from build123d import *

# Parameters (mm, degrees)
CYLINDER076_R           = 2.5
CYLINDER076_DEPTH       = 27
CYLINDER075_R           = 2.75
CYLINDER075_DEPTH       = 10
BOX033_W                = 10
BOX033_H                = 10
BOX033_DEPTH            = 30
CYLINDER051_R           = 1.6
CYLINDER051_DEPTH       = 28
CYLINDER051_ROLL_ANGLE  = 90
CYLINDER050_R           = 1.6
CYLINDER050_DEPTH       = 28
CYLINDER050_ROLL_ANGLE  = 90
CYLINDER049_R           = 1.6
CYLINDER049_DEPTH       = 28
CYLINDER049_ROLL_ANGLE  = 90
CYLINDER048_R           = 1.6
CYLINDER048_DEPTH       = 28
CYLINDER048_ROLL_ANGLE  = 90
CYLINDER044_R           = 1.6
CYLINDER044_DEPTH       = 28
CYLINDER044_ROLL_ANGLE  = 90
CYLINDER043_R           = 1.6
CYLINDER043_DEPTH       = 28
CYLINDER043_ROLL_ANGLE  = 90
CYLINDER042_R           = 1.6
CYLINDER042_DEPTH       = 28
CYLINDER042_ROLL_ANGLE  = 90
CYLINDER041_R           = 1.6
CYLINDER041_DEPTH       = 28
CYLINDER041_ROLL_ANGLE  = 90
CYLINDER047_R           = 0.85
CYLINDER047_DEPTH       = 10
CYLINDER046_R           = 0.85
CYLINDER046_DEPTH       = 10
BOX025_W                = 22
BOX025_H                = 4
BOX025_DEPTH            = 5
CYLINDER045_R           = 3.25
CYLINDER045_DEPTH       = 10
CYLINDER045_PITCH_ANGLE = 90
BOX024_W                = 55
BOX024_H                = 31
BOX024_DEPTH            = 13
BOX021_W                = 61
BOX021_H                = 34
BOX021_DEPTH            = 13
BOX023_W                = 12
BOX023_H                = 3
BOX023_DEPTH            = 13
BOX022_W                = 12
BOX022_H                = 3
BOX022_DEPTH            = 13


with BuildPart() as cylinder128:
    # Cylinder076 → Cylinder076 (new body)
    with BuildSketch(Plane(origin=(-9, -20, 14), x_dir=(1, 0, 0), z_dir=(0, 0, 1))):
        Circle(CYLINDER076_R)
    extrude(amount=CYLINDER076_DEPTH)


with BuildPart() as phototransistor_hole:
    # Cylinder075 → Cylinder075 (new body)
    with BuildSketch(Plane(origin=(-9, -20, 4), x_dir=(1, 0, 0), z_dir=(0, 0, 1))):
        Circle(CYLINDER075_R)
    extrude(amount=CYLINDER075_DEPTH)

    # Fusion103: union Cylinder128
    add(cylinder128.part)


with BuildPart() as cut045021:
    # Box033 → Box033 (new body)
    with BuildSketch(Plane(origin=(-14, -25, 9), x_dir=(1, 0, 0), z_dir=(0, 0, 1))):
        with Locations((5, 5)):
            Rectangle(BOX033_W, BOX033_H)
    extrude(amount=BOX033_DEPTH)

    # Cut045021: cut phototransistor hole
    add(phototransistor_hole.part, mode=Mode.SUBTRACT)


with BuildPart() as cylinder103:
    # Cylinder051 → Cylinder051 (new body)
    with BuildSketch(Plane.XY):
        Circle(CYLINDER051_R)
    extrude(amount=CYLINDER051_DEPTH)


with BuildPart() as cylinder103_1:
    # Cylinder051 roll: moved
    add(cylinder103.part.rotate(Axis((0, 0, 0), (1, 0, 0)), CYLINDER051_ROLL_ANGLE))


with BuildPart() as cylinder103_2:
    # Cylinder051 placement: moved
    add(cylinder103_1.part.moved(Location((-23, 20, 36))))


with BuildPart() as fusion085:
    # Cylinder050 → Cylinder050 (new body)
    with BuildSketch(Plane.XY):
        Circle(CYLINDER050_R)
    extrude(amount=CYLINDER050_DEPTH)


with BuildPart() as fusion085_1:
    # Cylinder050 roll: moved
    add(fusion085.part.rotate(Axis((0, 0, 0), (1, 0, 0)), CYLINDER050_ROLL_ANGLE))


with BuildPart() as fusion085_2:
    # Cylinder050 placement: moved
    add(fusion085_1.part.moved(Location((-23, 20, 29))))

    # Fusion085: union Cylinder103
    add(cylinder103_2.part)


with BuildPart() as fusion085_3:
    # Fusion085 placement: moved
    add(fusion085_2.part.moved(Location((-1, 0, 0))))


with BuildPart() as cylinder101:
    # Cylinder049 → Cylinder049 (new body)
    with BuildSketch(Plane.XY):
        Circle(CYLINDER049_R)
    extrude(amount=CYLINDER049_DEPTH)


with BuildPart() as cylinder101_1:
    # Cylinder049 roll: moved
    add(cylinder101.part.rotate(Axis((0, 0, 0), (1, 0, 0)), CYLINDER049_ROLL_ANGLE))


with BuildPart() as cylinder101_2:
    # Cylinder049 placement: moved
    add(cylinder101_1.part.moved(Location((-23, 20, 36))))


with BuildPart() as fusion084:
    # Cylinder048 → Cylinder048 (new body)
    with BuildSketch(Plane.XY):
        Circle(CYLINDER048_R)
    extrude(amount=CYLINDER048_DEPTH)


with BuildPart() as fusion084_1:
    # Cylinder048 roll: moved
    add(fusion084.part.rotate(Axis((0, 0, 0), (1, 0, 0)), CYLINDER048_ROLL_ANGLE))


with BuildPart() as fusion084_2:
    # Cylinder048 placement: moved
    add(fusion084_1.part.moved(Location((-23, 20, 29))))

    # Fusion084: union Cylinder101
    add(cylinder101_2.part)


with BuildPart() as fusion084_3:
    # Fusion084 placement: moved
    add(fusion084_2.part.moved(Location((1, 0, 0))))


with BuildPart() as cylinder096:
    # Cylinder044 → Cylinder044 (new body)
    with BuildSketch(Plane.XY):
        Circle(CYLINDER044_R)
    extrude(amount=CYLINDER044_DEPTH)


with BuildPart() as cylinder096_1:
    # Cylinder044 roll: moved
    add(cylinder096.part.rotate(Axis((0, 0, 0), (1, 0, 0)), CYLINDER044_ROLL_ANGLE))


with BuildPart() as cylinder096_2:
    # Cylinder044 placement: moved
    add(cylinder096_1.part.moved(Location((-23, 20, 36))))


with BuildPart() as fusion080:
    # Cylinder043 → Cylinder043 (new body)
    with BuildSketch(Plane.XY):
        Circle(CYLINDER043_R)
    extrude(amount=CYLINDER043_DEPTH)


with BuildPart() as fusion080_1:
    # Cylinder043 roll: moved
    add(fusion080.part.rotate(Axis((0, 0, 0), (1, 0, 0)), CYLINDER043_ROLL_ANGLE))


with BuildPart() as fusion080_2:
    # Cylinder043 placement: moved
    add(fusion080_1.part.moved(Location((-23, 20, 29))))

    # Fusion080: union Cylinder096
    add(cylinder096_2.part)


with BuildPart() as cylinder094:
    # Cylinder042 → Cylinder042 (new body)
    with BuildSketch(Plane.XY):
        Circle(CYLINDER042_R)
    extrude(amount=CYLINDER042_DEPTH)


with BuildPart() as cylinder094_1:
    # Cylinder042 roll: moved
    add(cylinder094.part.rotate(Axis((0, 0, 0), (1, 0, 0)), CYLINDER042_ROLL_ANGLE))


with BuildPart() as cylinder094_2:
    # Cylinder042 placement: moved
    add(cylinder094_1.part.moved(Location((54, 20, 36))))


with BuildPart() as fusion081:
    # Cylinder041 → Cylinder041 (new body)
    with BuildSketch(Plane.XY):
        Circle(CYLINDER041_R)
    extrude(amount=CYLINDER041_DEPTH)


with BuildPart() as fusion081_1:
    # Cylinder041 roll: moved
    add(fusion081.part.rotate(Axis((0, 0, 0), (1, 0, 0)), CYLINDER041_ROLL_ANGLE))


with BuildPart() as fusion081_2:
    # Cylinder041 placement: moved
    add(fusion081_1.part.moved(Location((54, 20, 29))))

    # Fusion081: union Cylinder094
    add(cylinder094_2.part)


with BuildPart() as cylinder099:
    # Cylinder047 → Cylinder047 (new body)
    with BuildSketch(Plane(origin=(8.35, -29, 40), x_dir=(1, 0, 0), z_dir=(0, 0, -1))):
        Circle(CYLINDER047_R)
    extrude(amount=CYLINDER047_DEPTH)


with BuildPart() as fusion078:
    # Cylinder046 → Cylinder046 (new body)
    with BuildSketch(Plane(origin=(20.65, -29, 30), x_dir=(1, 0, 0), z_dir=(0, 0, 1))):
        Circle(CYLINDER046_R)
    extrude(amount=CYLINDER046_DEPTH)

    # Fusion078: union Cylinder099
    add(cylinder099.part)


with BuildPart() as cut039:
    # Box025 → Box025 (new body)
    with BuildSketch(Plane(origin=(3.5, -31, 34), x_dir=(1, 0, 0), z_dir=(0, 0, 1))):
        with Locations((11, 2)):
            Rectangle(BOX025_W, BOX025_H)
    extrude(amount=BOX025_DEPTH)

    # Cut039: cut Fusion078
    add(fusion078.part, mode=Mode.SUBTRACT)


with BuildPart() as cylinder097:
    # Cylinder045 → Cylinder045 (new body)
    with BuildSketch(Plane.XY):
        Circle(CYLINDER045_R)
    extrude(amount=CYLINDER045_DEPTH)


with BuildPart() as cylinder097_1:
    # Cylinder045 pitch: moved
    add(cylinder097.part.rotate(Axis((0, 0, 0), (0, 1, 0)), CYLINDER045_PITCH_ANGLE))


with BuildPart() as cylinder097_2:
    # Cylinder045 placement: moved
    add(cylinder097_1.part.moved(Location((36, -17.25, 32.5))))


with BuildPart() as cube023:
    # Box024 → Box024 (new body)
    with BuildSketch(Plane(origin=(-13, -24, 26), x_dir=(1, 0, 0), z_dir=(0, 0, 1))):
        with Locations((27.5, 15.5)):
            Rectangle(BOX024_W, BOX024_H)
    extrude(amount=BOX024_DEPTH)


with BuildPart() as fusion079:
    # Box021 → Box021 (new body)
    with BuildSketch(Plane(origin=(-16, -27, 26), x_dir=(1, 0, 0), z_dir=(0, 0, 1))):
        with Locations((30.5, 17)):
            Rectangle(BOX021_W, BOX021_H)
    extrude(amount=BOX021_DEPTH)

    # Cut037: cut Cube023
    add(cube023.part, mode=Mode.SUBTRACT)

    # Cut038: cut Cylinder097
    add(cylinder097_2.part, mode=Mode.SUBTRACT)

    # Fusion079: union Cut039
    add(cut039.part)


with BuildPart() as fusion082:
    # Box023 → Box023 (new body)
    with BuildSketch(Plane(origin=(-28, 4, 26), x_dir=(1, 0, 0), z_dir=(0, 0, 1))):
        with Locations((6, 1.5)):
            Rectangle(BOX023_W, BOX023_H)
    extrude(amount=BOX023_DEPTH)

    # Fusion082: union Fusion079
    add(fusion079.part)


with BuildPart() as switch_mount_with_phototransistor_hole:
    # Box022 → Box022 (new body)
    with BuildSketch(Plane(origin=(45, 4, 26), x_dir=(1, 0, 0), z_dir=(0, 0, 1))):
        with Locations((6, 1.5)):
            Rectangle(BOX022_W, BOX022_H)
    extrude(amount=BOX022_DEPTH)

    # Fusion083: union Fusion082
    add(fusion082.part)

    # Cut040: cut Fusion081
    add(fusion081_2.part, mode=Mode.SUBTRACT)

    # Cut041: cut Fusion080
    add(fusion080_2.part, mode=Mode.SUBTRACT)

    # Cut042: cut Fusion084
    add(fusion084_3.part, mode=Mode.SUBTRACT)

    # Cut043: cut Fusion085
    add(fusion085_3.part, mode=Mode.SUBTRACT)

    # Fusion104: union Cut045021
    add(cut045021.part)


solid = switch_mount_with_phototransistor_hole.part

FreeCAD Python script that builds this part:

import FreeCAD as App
import Part
import Sketcher

doc = App.newDocument("Part")
body = doc.addObject("PartDesign::Body", "Body")

sketch1 = body.newObject("Sketcher::SketchObject", "Sketch")
sketch1.AttachmentSupport = (doc.getObject("XY_Plane"), [""])
sketch1.MapMode = "FlatFace"
sketch1.AttachmentOffset = App.Placement(App.Vector(0, 0, 14), App.Rotation())
sketch1.addGeometry(Part.Circle(App.Vector(-9, -20, 0), App.Vector(0, 0, 1), 2.5), False)
sketch1.addConstraint(Sketcher.Constraint("Diameter", 0, 5.0))
sketch1.addConstraint(Sketcher.Constraint("DistanceX", 0, 3, -1, 1, 9.0))
sketch1.addConstraint(Sketcher.Constraint("DistanceY", 0, 3, -1, 1, 20.0))
pad1 = body.newObject("PartDesign::Pad", "Pad")
pad1.Profile = sketch1
pad1.Length = 27
body2 = doc.addObject("PartDesign::Body", "Body001")

sketch2 = body2.newObject("Sketcher::SketchObject", "Sketch001")
sketch2.AttachmentSupport = (doc.getObject("XY_Plane001"), [""])
sketch2.MapMode = "FlatFace"
sketch2.AttachmentOffset = App.Placement(App.Vector(0, 0, 4), App.Rotation())
sketch2.addGeometry(Part.Circle(App.Vector(-9, -20, 0), App.Vector(0, 0, 1), 2.8), False)
sketch2.addConstraint(Sketcher.Constraint("Diameter", 0, 5.5))
sketch2.addConstraint(Sketcher.Constraint("DistanceX", 0, 3, -1, 1, 9.0))
sketch2.addConstraint(Sketcher.Constraint("DistanceY", 0, 3, -1, 1, 20.0))
pad2 = body2.newObject("PartDesign::Pad", "Pad001")
pad2.Profile = sketch2
pad2.Length = 10
doc.recompute()

boolean = body2.newObject("PartDesign::Boolean", "Boolean")
boolean.Type = "Fuse"
boolean.addObjects([body])
body3 = doc.addObject("PartDesign::Body", "Body002")

sketch3 = body3.newObject("Sketcher::SketchObject", "Sketch002")
sketch3.AttachmentSupport = (doc.getObject("XY_Plane002"), [""])
sketch3.MapMode = "FlatFace"
sketch3.AttachmentOffset = App.Placement(App.Vector(0, 0, 9), App.Rotation())
sketch3.addGeometry(Part.LineSegment(App.Vector(-14, -15, 0), App.Vector(-14, -25, 0)), False)
sketch3.addGeometry(Part.LineSegment(App.Vector(-14, -25, 0), App.Vector(-4, -25, 0)), False)
sketch3.addGeometry(Part.LineSegment(App.Vector(-4, -25, 0), App.Vector(-4, -15, 0)), False)
sketch3.addGeometry(Part.LineSegment(App.Vector(-4, -15, 0), App.Vector(-14, -15, 0)), False)
sketch3.addConstraint(Sketcher.Constraint("Coincident", 0, 2, 1, 1))
sketch3.addConstraint(Sketcher.Constraint("Coincident", 1, 2, 2, 1))
sketch3.addConstraint(Sketcher.Constraint("Coincident", 2, 2, 3, 1))
sketch3.addConstraint(Sketcher.Constraint("Coincident", 3, 2, 0, 1))
sketch3.addConstraint(Sketcher.Constraint("Vertical", 0))
sketch3.addConstraint(Sketcher.Constraint("Horizontal", 1))
sketch3.addConstraint(Sketcher.Constraint("Vertical", 2))
sketch3.addConstraint(Sketcher.Constraint("Horizontal", 3))
sketch3.addConstraint(Sketcher.Constraint("Equal", 3, 0))
sketch3.addConstraint(Sketcher.Constraint("DistanceX", 1, 1, 1, 2, 10.0))
sketch3.addConstraint(Sketcher.Constraint("DistanceX", 0, 2, -1, 1, 14.0))
sketch3.addConstraint(Sketcher.Constraint("DistanceY", 0, 2, -1, 1, 25.0))
pad3 = body3.newObject("PartDesign::Pad", "Pad002")
pad3.Profile = sketch3
pad3.Length = 30
doc.recompute()

boolean2 = body3.newObject("PartDesign::Boolean", "Boolean001")
boolean2.Type = "Cut"
boolean2.addObjects([body2])
body4 = doc.addObject("PartDesign::Body", "Body003")

sketch4 = body4.newObject("Sketcher::SketchObject", "Sketch003")
sketch4.AttachmentSupport = (doc.getObject("XY_Plane003"), [""])
sketch4.MapMode = "FlatFace"
sketch4.addGeometry(Part.Circle(App.Vector(0, 0, 0), App.Vector(0, 0, 1), 1.6), False)
sketch4.addConstraint(Sketcher.Constraint("Coincident", 0, 3, -1, 1))
sketch4.addConstraint(Sketcher.Constraint("Diameter", 0, 3.2))
pad4 = body4.newObject("PartDesign::Pad", "Pad003")
pad4.Profile = sketch4
pad4.Length = 28
body5 = doc.addObject("PartDesign::Body", "Body004")
doc.recompute()

body4.Placement = App.Placement(App.Vector(0, 0, 0), App.Rotation(App.Vector(1, 0, 0), 90))
boolean3 = body5.newObject("PartDesign::Boolean", "Boolean002")
boolean3.Type = "Fuse"
boolean3.addObjects([body4])
body6 = doc.addObject("PartDesign::Body", "Body005")
doc.recompute()

body5.Placement = App.Placement(App.Vector(-23, 20, 36), App.Rotation(App.Vector(0, 0, 1), 0))
boolean4 = body6.newObject("PartDesign::Boolean", "Boolean003")
boolean4.Type = "Fuse"
boolean4.addObjects([body5])
body7 = doc.addObject("PartDesign::Body", "Body006")

sketch5 = body7.newObject("Sketcher::SketchObject", "Sketch004")
sketch5.AttachmentSupport = (doc.getObject("XY_Plane006"), [""])
sketch5.MapMode = "FlatFace"
sketch5.addGeometry(Part.Circle(App.Vector(0, 0, 0), App.Vector(0, 0, 1), 1.6), False)
sketch5.addConstraint(Sketcher.Constraint("Coincident", 0, 3, -1, 1))
sketch5.addConstraint(Sketcher.Constraint("Diameter", 0, 3.2))
pad5 = body7.newObject("PartDesign::Pad", "Pad004")
pad5.Profile = sketch5
pad5.Length = 28
body8 = doc.addObject("PartDesign::Body", "Body007")
doc.recompute()

body7.Placement = App.Placement(App.Vector(0, 0, 0), App.Rotation(App.Vector(1, 0, 0), 90))
boolean5 = body8.newObject("PartDesign::Boolean", "Boolean004")
boolean5.Type = "Fuse"
boolean5.addObjects([body7])
body9 = doc.addObject("PartDesign::Body", "Body008")
body9.AllowCompound = True
doc.recompute()

body8.Placement = App.Placement(App.Vector(-23, 20, 29), App.Rotation(App.Vector(0, 0, 1), 0))
boolean6 = body9.newObject("PartDesign::Boolean", "Boolean005")
boolean6.Type = "Fuse"
boolean6.addObjects([body8])
doc.recompute()

boolean7 = body9.newObject("PartDesign::Boolean", "Boolean006")
boolean7.Type = "Fuse"
boolean7.addObjects([body6])
body10 = doc.addObject("PartDesign::Body", "Body009")
body10.AllowCompound = True
doc.recompute()

body9.Placement = App.Placement(App.Vector(-1, 0, 0), App.Rotation(App.Vector(0, 0, 1), 0))
boolean8 = body10.newObject("PartDesign::Boolean", "Boolean007")
boolean8.Type = "Fuse"
boolean8.addObjects([body9])
body11 = doc.addObject("PartDesign::Body", "Body010")

sketch6 = body11.newObject("Sketcher::SketchObject", "Sketch005")
sketch6.AttachmentSupport = (doc.getObject("XY_Plane010"), [""])
sketch6.MapMode = "FlatFace"
sketch6.addGeometry(Part.Circle(App.Vector(0, 0, 0), App.Vector(0, 0, 1), 1.6), False)
sketch6.addConstraint(Sketcher.Constraint("Coincident", 0, 3, -1, 1))
sketch6.addConstraint(Sketcher.Constraint("Diameter", 0, 3.2))
pad6 = body11.newObject("PartDesign::Pad", "Pad005")
pad6.Profile = sketch6
pad6.Length = 28
body12 = doc.addObject("PartDesign::Body", "Body011")
doc.recompute()

body11.Placement = App.Placement(App.Vector(0, 0, 0), App.Rotation(App.Vector(1, 0, 0), 90))
boolean9 = body12.newObject("PartDesign::Boolean", "Boolean008")
boolean9.Type = "Fuse"
boolean9.addObjects([body11])
body13 = doc.addObject("PartDesign::Body", "Body012")
doc.recompute()

body12.Placement = App.Placement(App.Vector(-23, 20, 36), App.Rotation(App.Vector(0, 0, 1), 0))
boolean10 = body13.newObject("PartDesign::Boolean", "Boolean009")
boolean10.Type = "Fuse"
boolean10.addObjects([body12])
body14 = doc.addObject("PartDesign::Body", "Body013")

sketch7 = body14.newObject("Sketcher::SketchObject", "Sketch006")
sketch7.AttachmentSupport = (doc.getObject("XY_Plane013"), [""])
sketch7.MapMode = "FlatFace"
sketch7.addGeometry(Part.Circle(App.Vector(0, 0, 0), App.Vector(0, 0, 1), 1.6), False)
sketch7.addConstraint(Sketcher.Constraint("Coincident", 0, 3, -1, 1))
sketch7.addConstraint(Sketcher.Constraint("Diameter", 0, 3.2))
pad7 = body14.newObject("PartDesign::Pad", "Pad006")
pad7.Profile = sketch7
pad7.Length = 28
body15 = doc.addObject("PartDesign::Body", "Body014")
doc.recompute()

body14.Placement = App.Placement(App.Vector(0, 0, 0), App.Rotation(App.Vector(1, 0, 0), 90))
boolean11 = body15.newObject("PartDesign::Boolean", "Boolean010")
boolean11.Type = "Fuse"
boolean11.addObjects([body14])
body16 = doc.addObject("PartDesign::Body", "Body015")
body16.AllowCompound = True
doc.recompute()

body15.Placement = App.Placement(App.Vector(-23, 20, 29), App.Rotation(App.Vector(0, 0, 1), 0))
boolean12 = body16.newObject("PartDesign::Boolean", "Boolean011")
boolean12.Type = "Fuse"
boolean12.addObjects([body15])
doc.recompute()

boolean13 = body16.newObject("PartDesign::Boolean", "Boolean012")
boolean13.Type = "Fuse"
boolean13.addObjects([body13])
body17 = doc.addObject("PartDesign::Body", "Body016")
body17.AllowCompound = True
doc.recompute()

body16.Placement = App.Placement(App.Vector(1, 0, 0), App.Rotation(App.Vector(0, 0, 1), 0))
boolean14 = body17.newObject("PartDesign::Boolean", "Boolean013")
boolean14.Type = "Fuse"
boolean14.addObjects([body16])
body18 = doc.addObject("PartDesign::Body", "Body017")

sketch8 = body18.newObject("Sketcher::SketchObject", "Sketch007")
sketch8.AttachmentSupport = (doc.getObject("XY_Plane017"), [""])
sketch8.MapMode = "FlatFace"
sketch8.addGeometry(Part.Circle(App.Vector(0, 0, 0), App.Vector(0, 0, 1), 1.6), False)
sketch8.addConstraint(Sketcher.Constraint("Coincident", 0, 3, -1, 1))
sketch8.addConstraint(Sketcher.Constraint("Diameter", 0, 3.2))
pad8 = body18.newObject("PartDesign::Pad", "Pad007")
pad8.Profile = sketch8
pad8.Length = 28
body19 = doc.addObject("PartDesign::Body", "Body018")
doc.recompute()

body18.Placement = App.Placement(App.Vector(0, 0, 0), App.Rotation(App.Vector(1, 0, 0), 90))
boolean15 = body19.newObject("PartDesign::Boolean", "Boolean014")
boolean15.Type = "Fuse"
boolean15.addObjects([body18])
body20 = doc.addObject("PartDesign::Body", "Body019")
doc.recompute()

body19.Placement = App.Placement(App.Vector(-23, 20, 36), App.Rotation(App.Vector(0, 0, 1), 0))
boolean16 = body20.newObject("PartDesign::Boolean", "Boolean015")
boolean16.Type = "Fuse"
boolean16.addObjects([body19])
body21 = doc.addObject("PartDesign::Body", "Body020")

sketch9 = body21.newObject("Sketcher::SketchObject", "Sketch008")
sketch9.AttachmentSupport = (doc.getObject("XY_Plane020"), [""])
sketch9.MapMode = "FlatFace"
sketch9.addGeometry(Part.Circle(App.Vector(0, 0, 0), App.Vector(0, 0, 1), 1.6), False)
sketch9.addConstraint(Sketcher.Constraint("Coincident", 0, 3, -1, 1))
sketch9.addConstraint(Sketcher.Constraint("Diameter", 0, 3.2))
pad9 = body21.newObject("PartDesign::Pad", "Pad008")
pad9.Profile = sketch9
pad9.Length = 28
body22 = doc.addObject("PartDesign::Body", "Body021")
doc.recompute()

body21.Placement = App.Placement(App.Vector(0, 0, 0), App.Rotation(App.Vector(1, 0, 0), 90))
boolean17 = body22.newObject("PartDesign::Boolean", "Boolean016")
boolean17.Type = "Fuse"
boolean17.addObjects([body21])
body23 = doc.addObject("PartDesign::Body", "Body022")
body23.AllowCompound = True
doc.recompute()

body22.Placement = App.Placement(App.Vector(-23, 20, 29), App.Rotation(App.Vector(0, 0, 1), 0))
boolean18 = body23.newObject("PartDesign::Boolean", "Boolean017")
boolean18.Type = "Fuse"
boolean18.addObjects([body22])
doc.recompute()

boolean19 = body23.newObject("PartDesign::Boolean", "Boolean018")
boolean19.Type = "Fuse"
boolean19.addObjects([body20])
body24 = doc.addObject("PartDesign::Body", "Body023")

sketch10 = body24.newObject("Sketcher::SketchObject", "Sketch009")
sketch10.AttachmentSupport = (doc.getObject("XY_Plane023"), [""])
sketch10.MapMode = "FlatFace"
sketch10.addGeometry(Part.Circle(App.Vector(0, 0, 0), App.Vector(0, 0, 1), 1.6), False)
sketch10.addConstraint(Sketcher.Constraint("Coincident", 0, 3, -1, 1))
sketch10.addConstraint(Sketcher.Constraint("Diameter", 0, 3.2))
pad10 = body24.newObject("PartDesign::Pad", "Pad009")
pad10.Profile = sketch10
pad10.Length = 28
body25 = doc.addObject("PartDesign::Body", "Body024")
doc.recompute()

body24.Placement = App.Placement(App.Vector(0, 0, 0), App.Rotation(App.Vector(1, 0, 0), 90))
boolean20 = body25.newObject("PartDesign::Boolean", "Boolean019")
boolean20.Type = "Fuse"
boolean20.addObjects([body24])
body26 = doc.addObject("PartDesign::Body", "Body025")
doc.recompute()

body25.Placement = App.Placement(App.Vector(54, 20, 36), App.Rotation(App.Vector(0, 0, 1), 0))
boolean21 = body26.newObject("PartDesign::Boolean", "Boolean020")
boolean21.Type = "Fuse"
boolean21.addObjects([body25])
body27 = doc.addObject("PartDesign::Body", "Body026")

sketch11 = body27.newObject("Sketcher::SketchObject", "Sketch010")
sketch11.AttachmentSupport = (doc.getObject("XY_Plane026"), [""])
sketch11.MapMode = "FlatFace"
sketch11.addGeometry(Part.Circle(App.Vector(0, 0, 0), App.Vector(0, 0, 1), 1.6), False)
sketch11.addConstraint(Sketcher.Constraint("Coincident", 0, 3, -1, 1))
sketch11.addConstraint(Sketcher.Constraint("Diameter", 0, 3.2))
pad11 = body27.newObject("PartDesign::Pad", "Pad010")
pad11.Profile = sketch11
pad11.Length = 28
body28 = doc.addObject("PartDesign::Body", "Body027")
doc.recompute()

body27.Placement = App.Placement(App.Vector(0, 0, 0), App.Rotation(App.Vector(1, 0, 0), 90))
boolean22 = body28.newObject("PartDesign::Boolean", "Boolean021")
boolean22.Type = "Fuse"
boolean22.addObjects([body27])
body29 = doc.addObject("PartDesign::Body", "Body028")
body29.AllowCompound = True
doc.recompute()

body28.Placement = App.Placement(App.Vector(54, 20, 29), App.Rotation(App.Vector(0, 0, 1), 0))
boolean23 = body29.newObject("PartDesign::Boolean", "Boolean022")
boolean23.Type = "Fuse"
boolean23.addObjects([body28])
doc.recompute()

boolean24 = body29.newObject("PartDesign::Boolean", "Boolean023")
boolean24.Type = "Fuse"
boolean24.addObjects([body26])
body30 = doc.addObject("PartDesign::Body", "Body029")

sketch12 = body30.newObject("Sketcher::SketchObject", "Sketch011")
sketch12.AttachmentSupport = (doc.getObject("XY_Plane029"), [""])
sketch12.MapMode = "FlatFace"
sketch12.AttachmentOffset = App.Placement(App.Vector(0, 0, 40), App.Rotation())
sketch12.addGeometry(Part.Circle(App.Vector(8.3, -29, 0), App.Vector(0, 0, 1), 0.8), False)
sketch12.addConstraint(Sketcher.Constraint("Diameter", 0, 1.7))
sketch12.addConstraint(Sketcher.Constraint("DistanceY", 0, 3, -1, 1, 29.0))
sketch12.addConstraint(Sketcher.Constraint("DistanceX", -1, 1, 0, 3, 8.35))
pad12 = body30.newObject("PartDesign::Pad", "Pad011")
pad12.Profile = sketch12
pad12.Length = 10
pad12.Reversed = True
body31 = doc.addObject("PartDesign::Body", "Body030")
body31.AllowCompound = True

sketch13 = body31.newObject("Sketcher::SketchObject", "Sketch012")
sketch13.AttachmentSupport = (doc.getObject("XY_Plane030"), [""])
sketch13.MapMode = "FlatFace"
sketch13.AttachmentOffset = App.Placement(App.Vector(0, 0, 30), App.Rotation())
sketch13.addGeometry(Part.Circle(App.Vector(20.6, -29, 0), App.Vector(0, 0, 1), 0.8), False)
sketch13.addConstraint(Sketcher.Constraint("Diameter", 0, 1.7))
sketch13.addConstraint(Sketcher.Constraint("DistanceY", 0, 3, -1, 1, 29.0))
sketch13.addConstraint(Sketcher.Constraint("DistanceX", -1, 1, 0, 3, 20.65))
pad13 = body31.newObject("PartDesign::Pad", "Pad012")
pad13.Profile = sketch13
pad13.Length = 10
doc.recompute()

boolean25 = body31.newObject("PartDesign::Boolean", "Boolean024")
boolean25.Type = "Fuse"
boolean25.addObjects([body30])
body32 = doc.addObject("PartDesign::Body", "Body031")

sketch14 = body32.newObject("Sketcher::SketchObject", "Sketch013")
sketch14.AttachmentSupport = (doc.getObject("XY_Plane031"), [""])
sketch14.MapMode = "FlatFace"
sketch14.AttachmentOffset = App.Placement(App.Vector(0, 0, 34), App.Rotation())
sketch14.addGeometry(Part.LineSegment(App.Vector(3.5, -27, 0), App.Vector(3.5, -31, 0)), False)
sketch14.addGeometry(Part.LineSegment(App.Vector(3.5, -31, 0), App.Vector(25.5, -31, 0)), False)
sketch14.addGeometry(Part.LineSegment(App.Vector(25.5, -31, 0), App.Vector(25.5, -27, 0)), False)
sketch14.addGeometry(Part.LineSegment(App.Vector(25.5, -27, 0), App.Vector(3.5, -27, 0)), False)
sketch14.addConstraint(Sketcher.Constraint("Coincident", 0, 2, 1, 1))
sketch14.addConstraint(Sketcher.Constraint("Coincident", 1, 2, 2, 1))
sketch14.addConstraint(Sketcher.Constraint("Coincident", 2, 2, 3, 1))
sketch14.addConstraint(Sketcher.Constraint("Coincident", 3, 2, 0, 1))
sketch14.addConstraint(Sketcher.Constraint("Vertical", 0))
sketch14.addConstraint(Sketcher.Constraint("Horizontal", 1))
sketch14.addConstraint(Sketcher.Constraint("Vertical", 2))
sketch14.addConstraint(Sketcher.Constraint("Horizontal", 3))
sketch14.addConstraint(Sketcher.Constraint("DistanceX", 1, 1, 1, 2, 22.0))
sketch14.addConstraint(Sketcher.Constraint("DistanceY", 0, 2, 0, 1, 4.0))
sketch14.addConstraint(Sketcher.Constraint("DistanceY", 0, 2, -1, 1, 31.0))
sketch14.addConstraint(Sketcher.Constraint("DistanceX", -1, 1, 0, 2, 3.5))
pad14 = body32.newObject("PartDesign::Pad", "Pad013")
pad14.Profile = sketch14
pad14.Length = 5
doc.recompute()

boolean26 = body32.newObject("PartDesign::Boolean", "Boolean025")
boolean26.Type = "Cut"
boolean26.addObjects([body31])
body33 = doc.addObject("PartDesign::Body", "Body032")

sketch15 = body33.newObject("Sketcher::SketchObject", "Sketch014")
sketch15.AttachmentSupport = (doc.getObject("XY_Plane032"), [""])
sketch15.MapMode = "FlatFace"
sketch15.addGeometry(Part.Circle(App.Vector(0, 0, 0), App.Vector(0, 0, 1), 3.2), False)
sketch15.addConstraint(Sketcher.Constraint("Coincident", 0, 3, -1, 1))
sketch15.addConstraint(Sketcher.Constraint("Diameter", 0, 6.5))
pad15 = body33.newObject("PartDesign::Pad", "Pad014")
pad15.Profile = sketch15
pad15.Length = 10
body34 = doc.addObject("PartDesign::Body", "Body033")
doc.recompute()

body33.Placement = App.Placement(App.Vector(0, 0, 0), App.Rotation(App.Vector(0, 1, 0), 90))
boolean27 = body34.newObject("PartDesign::Boolean", "Boolean026")
boolean27.Type = "Fuse"
boolean27.addObjects([body33])
body35 = doc.addObject("PartDesign::Body", "Body034")
doc.recompute()

body34.Placement = App.Placement(App.Vector(36, -17.25, 32.5), App.Rotation(App.Vector(0, 0, 1), 0))
boolean28 = body35.newObject("PartDesign::Boolean", "Boolean027")
boolean28.Type = "Fuse"
boolean28.addObjects([body34])
body36 = doc.addObject("PartDesign::Body", "Body035")

sketch16 = body36.newObject("Sketcher::SketchObject", "Sketch015")
sketch16.AttachmentSupport = (doc.getObject("XY_Plane035"), [""])
sketch16.MapMode = "FlatFace"
sketch16.AttachmentOffset = App.Placement(App.Vector(0, 0, 26), App.Rotation())
sketch16.addGeometry(Part.LineSegment(App.Vector(-13, 7, 0), App.Vector(-13, -24, 0)), False)
sketch16.addGeometry(Part.LineSegment(App.Vector(-13, -24, 0), App.Vector(42, -24, 0)), False)
sketch16.addGeometry(Part.LineSegment(App.Vector(42, -24, 0), App.Vector(42, 7, 0)), False)
sketch16.addGeometry(Part.LineSegment(App.Vector(42, 7, 0), App.Vector(-13, 7, 0)), False)
sketch16.addConstraint(Sketcher.Constraint("Coincident", 0, 2, 1, 1))
sketch16.addConstraint(Sketcher.Constraint("Coincident", 1, 2, 2, 1))
sketch16.addConstraint(Sketcher.Constraint("Coincident", 2, 2, 3, 1))
sketch16.addConstraint(Sketcher.Constraint("Coincident", 3, 2, 0, 1))
sketch16.addConstraint(Sketcher.Constraint("Vertical", 0))
sketch16.addConstraint(Sketcher.Constraint("Horizontal", 1))
sketch16.addConstraint(Sketcher.Constraint("Vertical", 2))
sketch16.addConstraint(Sketcher.Constraint("Horizontal", 3))
sketch16.addConstraint(Sketcher.Constraint("DistanceX", 1, 1, 1, 2, 55.0))
sketch16.addConstraint(Sketcher.Constraint("DistanceY", 0, 2, 0, 1, 31.0))
sketch16.addConstraint(Sketcher.Constraint("DistanceX", 0, 2, -1, 1, 13.0))
sketch16.addConstraint(Sketcher.Constraint("DistanceY", 0, 2, -1, 1, 24.0))
pad16 = body36.newObject("PartDesign::Pad", "Pad015")
pad16.Profile = sketch16
pad16.Length = 13
body37 = doc.addObject("PartDesign::Body", "Body036")

sketch17 = body37.newObject("Sketcher::SketchObject", "Sketch016")
sketch17.AttachmentSupport = (doc.getObject("XY_Plane036"), [""])
sketch17.MapMode = "FlatFace"
sketch17.AttachmentOffset = App.Placement(App.Vector(0, 0, 26), App.Rotation())
sketch17.addGeometry(Part.LineSegment(App.Vector(-16, 7, 0), App.Vector(-16, -27, 0)), False)
sketch17.addGeometry(Part.LineSegment(App.Vector(-16, -27, 0), App.Vector(45, -27, 0)), False)
sketch17.addGeometry(Part.LineSegment(App.Vector(45, -27, 0), App.Vector(45, 7, 0)), False)
sketch17.addGeometry(Part.LineSegment(App.Vector(45, 7, 0), App.Vector(-16, 7, 0)), False)
sketch17.addConstraint(Sketcher.Constraint("Coincident", 0, 2, 1, 1))
sketch17.addConstraint(Sketcher.Constraint("Coincident", 1, 2, 2, 1))
sketch17.addConstraint(Sketcher.Constraint("Coincident", 2, 2, 3, 1))
sketch17.addConstraint(Sketcher.Constraint("Coincident", 3, 2, 0, 1))
sketch17.addConstraint(Sketcher.Constraint("Vertical", 0))
sketch17.addConstraint(Sketcher.Constraint("Horizontal", 1))
sketch17.addConstraint(Sketcher.Constraint("Vertical", 2))
sketch17.addConstraint(Sketcher.Constraint("Horizontal", 3))
sketch17.addConstraint(Sketcher.Constraint("DistanceX", 1, 1, 1, 2, 61.0))
sketch17.addConstraint(Sketcher.Constraint("DistanceY", 0, 2, 0, 1, 34.0))
sketch17.addConstraint(Sketcher.Constraint("DistanceX", 0, 2, -1, 1, 16.0))
sketch17.addConstraint(Sketcher.Constraint("DistanceY", 0, 2, -1, 1, 27.0))
pad17 = body37.newObject("PartDesign::Pad", "Pad016")
pad17.Profile = sketch17
pad17.Length = 13
doc.recompute()

boolean29 = body37.newObject("PartDesign::Boolean", "Boolean028")
boolean29.Type = "Cut"
boolean29.addObjects([body36])
doc.recompute()

boolean30 = body37.newObject("PartDesign::Boolean", "Boolean029")
boolean30.Type = "Cut"
boolean30.addObjects([body35])
doc.recompute()

boolean31 = body37.newObject("PartDesign::Boolean", "Boolean030")
boolean31.Type = "Fuse"
boolean31.addObjects([body32])
body38 = doc.addObject("PartDesign::Body", "Body037")

sketch18 = body38.newObject("Sketcher::SketchObject", "Sketch017")
sketch18.AttachmentSupport = (doc.getObject("XY_Plane037"), [""])
sketch18.MapMode = "FlatFace"
sketch18.AttachmentOffset = App.Placement(App.Vector(0, 0, 26), App.Rotation())
sketch18.addGeometry(Part.LineSegment(App.Vector(-28, 7, 0), App.Vector(-28, 4, 0)), False)
sketch18.addGeometry(Part.LineSegment(App.Vector(-28, 4, 0), App.Vector(-16, 4, 0)), False)
sketch18.addGeometry(Part.LineSegment(App.Vector(-16, 4, 0), App.Vector(-16, 7, 0)), False)
sketch18.addGeometry(Part.LineSegment(App.Vector(-16, 7, 0), App.Vector(-28, 7, 0)), False)
sketch18.addConstraint(Sketcher.Constraint("Coincident", 0, 2, 1, 1))
sketch18.addConstraint(Sketcher.Constraint("Coincident", 1, 2, 2, 1))
sketch18.addConstraint(Sketcher.Constraint("Coincident", 2, 2, 3, 1))
sketch18.addConstraint(Sketcher.Constraint("Coincident", 3, 2, 0, 1))
sketch18.addConstraint(Sketcher.Constraint("Vertical", 0))
sketch18.addConstraint(Sketcher.Constraint("Horizontal", 1))
sketch18.addConstraint(Sketcher.Constraint("Vertical", 2))
sketch18.addConstraint(Sketcher.Constraint("Horizontal", 3))
sketch18.addConstraint(Sketcher.Constraint("DistanceX", 1, 1, 1, 2, 12.0))
sketch18.addConstraint(Sketcher.Constraint("DistanceY", 0, 2, 0, 1, 3.0))
sketch18.addConstraint(Sketcher.Constraint("DistanceX", 0, 2, -1, 1, 28.0))
sketch18.addConstraint(Sketcher.Constraint("DistanceY", -1, 1, 0, 2, 4.0))
pad18 = body38.newObject("PartDesign::Pad", "Pad017")
pad18.Profile = sketch18
pad18.Length = 13
doc.recompute()

boolean32 = body38.newObject("PartDesign::Boolean", "Boolean031")
boolean32.Type = "Fuse"
boolean32.addObjects([body37])
body39 = doc.addObject("PartDesign::Body", "Body038")

sketch19 = body39.newObject("Sketcher::SketchObject", "Sketch018")
sketch19.AttachmentSupport = (doc.getObject("XY_Plane038"), [""])
sketch19.MapMode = "FlatFace"
sketch19.AttachmentOffset = App.Placement(App.Vector(0, 0, 26), App.Rotation())
sketch19.addGeometry(Part.LineSegment(App.Vector(45, 7, 0), App.Vector(45, 4, 0)), False)
sketch19.addGeometry(Part.LineSegment(App.Vector(45, 4, 0), App.Vector(57, 4, 0)), False)
sketch19.addGeometry(Part.LineSegment(App.Vector(57, 4, 0), App.Vector(57, 7, 0)), False)
sketch19.addGeometry(Part.LineSegment(App.Vector(57, 7, 0), App.Vector(45, 7, 0)), False)
sketch19.addConstraint(Sketcher.Constraint("Coincident", 0, 2, 1, 1))
sketch19.addConstraint(Sketcher.Constraint("Coincident", 1, 2, 2, 1))
sketch19.addConstraint(Sketcher.Constraint("Coincident", 2, 2, 3, 1))
sketch19.addConstraint(Sketcher.Constraint("Coincident", 3, 2, 0, 1))
sketch19.addConstraint(Sketcher.Constraint("Vertical", 0))
sketch19.addConstraint(Sketcher.Constraint("Horizontal", 1))
sketch19.addConstraint(Sketcher.Constraint("Vertical", 2))
sketch19.addConstraint(Sketcher.Constraint("Horizontal", 3))
sketch19.addConstraint(Sketcher.Constraint("DistanceX", 1, 1, 1, 2, 12.0))
sketch19.addConstraint(Sketcher.Constraint("DistanceY", 0, 2, 0, 1, 3.0))
sketch19.addConstraint(Sketcher.Constraint("DistanceX", -1, 1, 0, 2, 45.0))
sketch19.addConstraint(Sketcher.Constraint("DistanceY", -1, 1, 0, 2, 4.0))
pad19 = body39.newObject("PartDesign::Pad", "Pad018")
pad19.Profile = sketch19
pad19.Length = 13
doc.recompute()

boolean33 = body39.newObject("PartDesign::Boolean", "Boolean032")
boolean33.Type = "Fuse"
boolean33.addObjects([body38])
doc.recompute()

boolean34 = body39.newObject("PartDesign::Boolean", "Boolean033")
boolean34.Type = "Cut"
boolean34.addObjects([body29])
doc.recompute()

boolean35 = body39.newObject("PartDesign::Boolean", "Boolean034")
boolean35.Type = "Cut"
boolean35.addObjects([body23])
doc.recompute()

boolean36 = body39.newObject("PartDesign::Boolean", "Boolean035")
boolean36.Type = "Cut"
boolean36.addObjects([body17])
doc.recompute()

boolean37 = body39.newObject("PartDesign::Boolean", "Boolean036")
boolean37.Type = "Cut"
boolean37.addObjects([body10])
doc.recompute()

boolean38 = body39.newObject("PartDesign::Boolean", "Boolean037")
boolean38.Type = "Fuse"
boolean38.addObjects([body3])

doc.recompute()
